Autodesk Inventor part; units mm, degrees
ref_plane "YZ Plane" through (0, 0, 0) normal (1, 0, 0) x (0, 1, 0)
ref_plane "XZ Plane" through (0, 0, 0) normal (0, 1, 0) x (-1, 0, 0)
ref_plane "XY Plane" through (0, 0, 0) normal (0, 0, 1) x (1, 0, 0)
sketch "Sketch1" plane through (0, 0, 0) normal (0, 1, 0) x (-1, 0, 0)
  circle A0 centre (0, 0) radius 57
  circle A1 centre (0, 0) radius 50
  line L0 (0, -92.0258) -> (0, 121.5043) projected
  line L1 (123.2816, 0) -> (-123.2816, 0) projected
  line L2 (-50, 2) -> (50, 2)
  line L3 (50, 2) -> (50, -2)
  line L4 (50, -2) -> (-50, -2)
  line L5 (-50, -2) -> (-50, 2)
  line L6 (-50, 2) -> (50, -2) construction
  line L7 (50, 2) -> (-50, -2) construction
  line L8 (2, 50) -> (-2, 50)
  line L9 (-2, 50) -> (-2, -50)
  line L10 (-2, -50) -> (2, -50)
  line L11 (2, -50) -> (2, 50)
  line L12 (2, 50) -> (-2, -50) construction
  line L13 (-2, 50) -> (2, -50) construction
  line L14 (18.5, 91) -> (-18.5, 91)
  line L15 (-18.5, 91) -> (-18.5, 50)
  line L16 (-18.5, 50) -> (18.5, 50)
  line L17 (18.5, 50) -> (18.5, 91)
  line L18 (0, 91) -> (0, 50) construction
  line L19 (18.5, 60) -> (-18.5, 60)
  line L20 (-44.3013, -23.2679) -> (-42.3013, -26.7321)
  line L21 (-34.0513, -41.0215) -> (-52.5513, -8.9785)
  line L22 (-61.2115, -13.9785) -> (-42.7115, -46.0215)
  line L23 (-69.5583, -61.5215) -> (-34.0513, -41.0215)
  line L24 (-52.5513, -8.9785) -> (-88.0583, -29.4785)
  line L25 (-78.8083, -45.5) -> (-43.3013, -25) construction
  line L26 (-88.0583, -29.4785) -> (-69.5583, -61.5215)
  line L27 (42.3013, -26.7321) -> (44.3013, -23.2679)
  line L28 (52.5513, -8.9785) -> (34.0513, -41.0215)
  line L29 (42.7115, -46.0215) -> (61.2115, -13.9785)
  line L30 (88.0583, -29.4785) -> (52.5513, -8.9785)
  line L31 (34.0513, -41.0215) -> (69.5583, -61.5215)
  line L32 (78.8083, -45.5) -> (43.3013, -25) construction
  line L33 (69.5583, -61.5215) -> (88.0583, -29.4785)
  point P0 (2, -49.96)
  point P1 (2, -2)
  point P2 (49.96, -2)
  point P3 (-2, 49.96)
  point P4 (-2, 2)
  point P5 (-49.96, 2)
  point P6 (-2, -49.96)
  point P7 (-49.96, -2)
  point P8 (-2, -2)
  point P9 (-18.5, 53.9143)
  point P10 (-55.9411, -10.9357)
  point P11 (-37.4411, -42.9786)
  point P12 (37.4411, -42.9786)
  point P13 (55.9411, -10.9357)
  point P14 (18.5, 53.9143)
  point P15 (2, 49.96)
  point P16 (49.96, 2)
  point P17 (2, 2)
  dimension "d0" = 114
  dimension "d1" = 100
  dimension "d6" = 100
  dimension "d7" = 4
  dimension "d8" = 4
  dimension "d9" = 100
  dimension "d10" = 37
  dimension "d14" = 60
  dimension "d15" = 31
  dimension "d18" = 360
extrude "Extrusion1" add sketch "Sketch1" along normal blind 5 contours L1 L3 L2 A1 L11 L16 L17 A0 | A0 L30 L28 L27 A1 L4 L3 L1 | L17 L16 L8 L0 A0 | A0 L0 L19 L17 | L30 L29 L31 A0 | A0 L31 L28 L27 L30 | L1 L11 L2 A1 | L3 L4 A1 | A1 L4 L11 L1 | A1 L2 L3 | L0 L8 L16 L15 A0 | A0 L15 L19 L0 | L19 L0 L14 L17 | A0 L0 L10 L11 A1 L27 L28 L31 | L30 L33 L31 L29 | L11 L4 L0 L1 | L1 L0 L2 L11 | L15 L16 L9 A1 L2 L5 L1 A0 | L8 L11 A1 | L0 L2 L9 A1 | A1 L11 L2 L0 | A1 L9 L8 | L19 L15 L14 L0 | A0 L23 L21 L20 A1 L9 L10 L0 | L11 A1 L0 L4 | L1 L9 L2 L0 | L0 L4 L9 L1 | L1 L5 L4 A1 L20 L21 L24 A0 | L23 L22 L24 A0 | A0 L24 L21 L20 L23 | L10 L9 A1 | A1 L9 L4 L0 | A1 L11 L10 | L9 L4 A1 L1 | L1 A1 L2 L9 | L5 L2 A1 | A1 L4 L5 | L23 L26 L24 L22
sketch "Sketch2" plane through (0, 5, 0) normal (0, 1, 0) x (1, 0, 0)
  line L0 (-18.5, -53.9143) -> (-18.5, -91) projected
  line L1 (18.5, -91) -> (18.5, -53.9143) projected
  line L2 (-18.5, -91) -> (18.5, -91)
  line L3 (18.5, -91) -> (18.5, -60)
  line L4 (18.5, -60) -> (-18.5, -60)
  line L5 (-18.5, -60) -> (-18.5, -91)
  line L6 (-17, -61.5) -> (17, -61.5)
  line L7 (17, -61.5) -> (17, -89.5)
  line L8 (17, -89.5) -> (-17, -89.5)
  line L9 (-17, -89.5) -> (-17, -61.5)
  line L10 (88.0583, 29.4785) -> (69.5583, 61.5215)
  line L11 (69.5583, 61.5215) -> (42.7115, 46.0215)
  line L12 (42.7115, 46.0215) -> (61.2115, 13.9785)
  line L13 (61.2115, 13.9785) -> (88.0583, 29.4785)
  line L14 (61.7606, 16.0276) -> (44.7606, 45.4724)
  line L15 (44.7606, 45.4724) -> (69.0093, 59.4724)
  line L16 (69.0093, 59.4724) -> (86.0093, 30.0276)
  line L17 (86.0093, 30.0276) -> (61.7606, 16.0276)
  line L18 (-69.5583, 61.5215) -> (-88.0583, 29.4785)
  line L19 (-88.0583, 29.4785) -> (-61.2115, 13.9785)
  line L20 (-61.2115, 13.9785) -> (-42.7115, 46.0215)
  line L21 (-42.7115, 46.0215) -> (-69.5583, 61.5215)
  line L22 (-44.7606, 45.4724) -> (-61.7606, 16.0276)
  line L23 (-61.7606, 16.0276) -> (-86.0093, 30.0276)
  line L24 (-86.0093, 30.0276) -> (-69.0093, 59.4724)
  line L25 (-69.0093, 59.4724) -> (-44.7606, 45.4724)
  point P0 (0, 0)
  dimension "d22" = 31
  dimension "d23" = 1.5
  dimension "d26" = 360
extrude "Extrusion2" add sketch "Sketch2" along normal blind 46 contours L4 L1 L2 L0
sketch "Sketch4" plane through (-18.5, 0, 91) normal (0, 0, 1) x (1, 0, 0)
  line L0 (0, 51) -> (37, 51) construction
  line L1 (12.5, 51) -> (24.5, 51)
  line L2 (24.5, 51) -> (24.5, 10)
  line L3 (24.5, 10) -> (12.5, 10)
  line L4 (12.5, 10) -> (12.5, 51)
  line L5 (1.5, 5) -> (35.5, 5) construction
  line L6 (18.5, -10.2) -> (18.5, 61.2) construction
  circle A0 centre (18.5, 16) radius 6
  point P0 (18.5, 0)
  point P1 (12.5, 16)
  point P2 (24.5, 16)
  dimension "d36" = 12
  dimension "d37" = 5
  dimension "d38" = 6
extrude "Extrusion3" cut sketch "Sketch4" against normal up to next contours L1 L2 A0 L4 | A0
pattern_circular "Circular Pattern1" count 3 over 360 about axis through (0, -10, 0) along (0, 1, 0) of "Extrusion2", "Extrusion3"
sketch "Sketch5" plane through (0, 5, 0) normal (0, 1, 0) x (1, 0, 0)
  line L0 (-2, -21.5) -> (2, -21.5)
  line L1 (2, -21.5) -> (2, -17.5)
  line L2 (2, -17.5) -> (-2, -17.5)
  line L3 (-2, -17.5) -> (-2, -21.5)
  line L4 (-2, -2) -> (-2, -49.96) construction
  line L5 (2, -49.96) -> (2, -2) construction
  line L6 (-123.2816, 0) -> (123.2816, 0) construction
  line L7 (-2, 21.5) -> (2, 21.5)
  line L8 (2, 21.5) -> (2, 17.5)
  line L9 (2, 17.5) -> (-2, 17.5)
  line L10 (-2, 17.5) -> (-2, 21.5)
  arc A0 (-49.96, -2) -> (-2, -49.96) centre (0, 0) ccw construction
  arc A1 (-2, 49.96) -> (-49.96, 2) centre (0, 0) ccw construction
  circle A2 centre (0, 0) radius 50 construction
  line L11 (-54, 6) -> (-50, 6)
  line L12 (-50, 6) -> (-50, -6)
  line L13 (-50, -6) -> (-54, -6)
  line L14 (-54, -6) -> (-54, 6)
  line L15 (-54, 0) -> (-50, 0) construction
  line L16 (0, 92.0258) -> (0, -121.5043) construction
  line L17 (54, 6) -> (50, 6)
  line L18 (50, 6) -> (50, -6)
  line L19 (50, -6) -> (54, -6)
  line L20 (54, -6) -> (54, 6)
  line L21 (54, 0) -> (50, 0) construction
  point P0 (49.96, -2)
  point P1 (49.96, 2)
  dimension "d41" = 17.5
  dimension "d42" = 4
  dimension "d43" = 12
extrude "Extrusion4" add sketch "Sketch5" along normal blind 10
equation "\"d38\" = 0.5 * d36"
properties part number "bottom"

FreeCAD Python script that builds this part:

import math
import FreeCAD as App
import Part
import Sketcher
from FreeCAD import Vector
Q = App.Units.Quantity


def add_polygon(sketch, points):
    """Adds a closed chain of lines whose ends are joined by coincident constraints."""
    first, n = sketch.GeometryCount, len(points)
    for a, b in zip(points, points[1:] + points[:1]):
        sketch.addGeometry(Part.LineSegment(App.Vector(*a, 0), App.Vector(*b, 0)), False)
    for i in range(n):
        sketch.addConstraint(Sketcher.Constraint("Coincident", first + i, 2, first + (i + 1) % n, 1))

doc = App.newDocument("Part")
params = doc.addObject("Spreadsheet::Sheet", "Params")
for row, (alias, value) in enumerate([
    ("sketch1_radius", "57 mm"),
    ("sketch1_radius2", "50 mm"),
    ("sketch1_width", "37 mm"),
    ("sketch1_length", "37 mm"),
    ("pad1_length", "5 mm"),
    ("sketch2_height", "31 mm"),
    ("sketch2_width", "37 mm"),
    ("pad2_length", "46 mm"),
    ("sketch3_radius", "6 mm"),
    ("sketch3_height", "35 mm"),
    ("sketch4_width", "4 mm"),
    ("sketch4_height", "12 mm"),
    ("pad3_length", "10 mm"),
], start=1):
    params.set(f"A{row}", alias)
    params.set(f"B{row}", "=" + value)
    params.setAlias(f"B{row}", alias)

body = doc.addObject("PartDesign::Body", "Body")

# Sketch on XZ plane
sketch1 = body.newObject("Sketcher::SketchObject", "Sketch")
sketch1.AttachmentSupport = (doc.getObject("XZ_Plane"), [""])
sketch1.MapMode = "FlatFace"
sketch1.addGeometry(Part.LineSegment(Vector(-18.5, 53.914284, 0), Vector(-18.5, 91, 0)), False)
sketch1.addGeometry(Part.LineSegment(Vector(-18.5, 91, 0), Vector(18.5, 91, 0)), False)
sketch1.addGeometry(Part.LineSegment(Vector(18.5, 91, 0), Vector(18.5, 53.914284, 0)), False)
sketch1.addGeometry(Part.ArcOfCircle(Part.Circle(Vector(0, 0, 0), Vector(0, 0, 1), 57), math.radians(-11.060954), math.radians(71.060995)), False)
sketch1.addGeometry(Part.LineSegment(Vector(55.941147, -10.935632, 0), Vector(88.0583, -29.4785, 0)), False)
sketch1.addGeometry(Part.LineSegment(Vector(88.0583, -29.4785, 0), Vector(69.5583, -61.5215, 0)), False)
sketch1.addGeometry(Part.LineSegment(Vector(69.5583, -61.5215, 0), Vector(37.441129, -42.978621, 0)), False)
sketch1.addGeometry(Part.ArcOfCircle(Part.Circle(Vector(0, 0, 0), Vector(0, 0, 1), 57), math.radians(-131.060981), math.radians(-48.939019)), False)
sketch1.addGeometry(Part.LineSegment(Vector(-37.441129, -42.978621, 0), Vector(-69.5583, -61.5215, 0)), False)
sketch1.addGeometry(Part.LineSegment(Vector(-69.5583, -61.5215, 0), Vector(-88.0583, -29.4785, 0)), False)
sketch1.addGeometry(Part.LineSegment(Vector(-88.0583, -29.4785, 0), Vector(-55.941147, -10.935632, 0)), False)
sketch1.addGeometry(Part.ArcOfCircle(Part.Circle(Vector(0, 0, 0), Vector(0, 0, 1), 57), math.radians(108.939005), math.radians(191.060954)), False)
sketch1.addGeometry(Part.ArcOfCircle(Part.Circle(Vector(0, 0, 0), Vector(0, 0, 1), 50), math.radians(92.292443), math.radians(177.707557)), False)
sketch1.addGeometry(Part.LineSegment(Vector(-49.959984, 2, 0), Vector(-2, 2, 0)), False)
sketch1.addGeometry(Part.LineSegment(Vector(-2, 2, 0), Vector(-2, 49.959984, 0)), False)
sketch1.addGeometry(Part.ArcOfCircle(Part.Circle(Vector(0, 0, 0), Vector(0, 0, 1), 50), math.radians(-177.707557), math.radians(-92.292443)), False)
sketch1.addGeometry(Part.LineSegment(Vector(-2, -49.959984, 0), Vector(-2, -2, 0)), False)
sketch1.addGeometry(Part.LineSegment(Vector(-2, -2, 0), Vector(-49.959984, -2, 0)), False)
sketch1.addGeometry(Part.LineSegment(Vector(2, 49.959984, 0), Vector(2, 2, 0)), False)
sketch1.addGeometry(Part.LineSegment(Vector(2, 2, 0), Vector(49.959984, 2, 0)), False)
sketch1.addGeometry(Part.ArcOfCircle(Part.Circle(Vector(0, 0, 0), Vector(0, 0, 1), 50), math.radians(2.292443), math.radians(87.707557)), False)
sketch1.addGeometry(Part.ArcOfCircle(Part.Circle(Vector(0, 0, 0), Vector(0, 0, 1), 50), math.radians(-87.707557), math.radians(-2.292443)), False)
sketch1.addGeometry(Part.LineSegment(Vector(49.959984, -2, 0), Vector(2, -2, 0)), False)
sketch1.addGeometry(Part.LineSegment(Vector(2, -2, 0), Vector(2, -49.959984, 0)), False)
sketch1.addConstraint(Sketcher.Constraint("Coincident", 0, 2, 1, 1))
sketch1.addConstraint(Sketcher.Constraint("Coincident", 1, 2, 2, 1))
sketch1.addConstraint(Sketcher.Constraint("Coincident", 2, 2, 3, 2))
sketch1.addConstraint(Sketcher.Constraint("Coincident", 3, 1, 4, 1))
sketch1.addConstraint(Sketcher.Constraint("Coincident", 4, 2, 5, 1))
sketch1.addConstraint(Sketcher.Constraint("Coincident", 5, 2, 6, 1))
sketch1.addConstraint(Sketcher.Constraint("Coincident", 6, 2, 7, 2))
sketch1.addConstraint(Sketcher.Constraint("Coincident", 7, 1, 8, 1))
sketch1.addConstraint(Sketcher.Constraint("Coincident", 8, 2, 9, 1))
sketch1.addConstraint(Sketcher.Constraint("Coincident", 9, 2, 10, 1))
sketch1.addConstraint(Sketcher.Constraint("Coincident", 10, 2, 11, 2))
sketch1.addConstraint(Sketcher.Constraint("Coincident", 11, 1, 0, 1))
sketch1.addConstraint(Sketcher.Constraint("Coincident", 12, 2, 13, 1))
sketch1.addConstraint(Sketcher.Constraint("Coincident", 13, 2, 14, 1))
sketch1.addConstraint(Sketcher.Constraint("Coincident", 14, 2, 12, 1))
sketch1.addConstraint(Sketcher.Constraint("Coincident", 15, 2, 16, 1))
sketch1.addConstraint(Sketcher.Constraint("Coincident", 16, 2, 17, 1))
sketch1.addConstraint(Sketcher.Constraint("Coincident", 17, 2, 15, 1))
sketch1.addConstraint(Sketcher.Constraint("Coincident", 18, 2, 19, 1))
sketch1.addConstraint(Sketcher.Constraint("Coincident", 19, 2, 20, 1))
sketch1.addConstraint(Sketcher.Constraint("Coincident", 20, 2, 18, 1))
sketch1.addConstraint(Sketcher.Constraint("Coincident", 21, 2, 22, 1))
sketch1.addConstraint(Sketcher.Constraint("Coincident", 22, 2, 23, 1))
sketch1.addConstraint(Sketcher.Constraint("Coincident", 23, 2, 21, 1))
sketch1.addConstraint(Sketcher.Constraint("Vertical", 0))
sketch1.addConstraint(Sketcher.Constraint("Horizontal", 1))
sketch1.addConstraint(Sketcher.Constraint("Vertical", 2))
sketch1.addConstraint(Sketcher.Constraint("Horizontal", 13))
sketch1.addConstraint(Sketcher.Constraint("Vertical", 14))
sketch1.addConstraint(Sketcher.Constraint("Vertical", 16))
sketch1.addConstraint(Sketcher.Constraint("Horizontal", 17))
sketch1.addConstraint(Sketcher.Constraint("Vertical", 18))
sketch1.addConstraint(Sketcher.Constraint("Horizontal", 19))
sketch1.addConstraint(Sketcher.Constraint("Horizontal", 22))
sketch1.addConstraint(Sketcher.Constraint("Vertical", 23))
sketch1.addConstraint(Sketcher.Constraint("Coincident", 3, 3, -1, 1))
sketch1.addConstraint(Sketcher.Constraint("Coincident", 7, 3, -1, 1))
sketch1.addConstraint(Sketcher.Constraint("Coincident", 11, 3, -1, 1))
sketch1.addConstraint(Sketcher.Constraint("Coincident", 12, 3, -1, 1))
sketch1.addConstraint(Sketcher.Constraint("Coincident", 15, 3, -1, 1))
sketch1.addConstraint(Sketcher.Constraint("Coincident", 20, 3, -1, 1))
sketch1.addConstraint(Sketcher.Constraint("Coincident", 21, 3, -1, 1))
sketch1.addConstraint(Sketcher.Constraint("Equal", 3, 7))
sketch1.addConstraint(Sketcher.Constraint("Equal", 7, 11))
sketch1.addConstraint(Sketcher.Constraint("Equal", 12, 15))
sketch1.addConstraint(Sketcher.Constraint("Equal", 15, 20))
sketch1.addConstraint(Sketcher.Constraint("Equal", 20, 21))
sketch1.addConstraint(Sketcher.Constraint("Symmetric", 16, 2, 18, 2, -1, 1))
sketch1.addConstraint(Sketcher.Constraint("Symmetric", 13, 2, 22, 2, -1, 1))
sketch1.addConstraint(Sketcher.Constraint("Symmetric", 5, 2, 8, 2, -2))
sketch1.addConstraint(Sketcher.Constraint("Symmetric", 4, 2, 9, 2, -2))
sketch1.addConstraint(Sketcher.Constraint("Symmetric", 13, 2, 18, 2, -2))
sketch1.addConstraint(Sketcher.Constraint("Perpendicular", 4, 5))
sketch1.addConstraint(Sketcher.Constraint("Perpendicular", 5, 6))
sketch1.addConstraint(Sketcher.Constraint("Perpendicular", 8, 9))
sketch1.addConstraint(Sketcher.Constraint("Perpendicular", 9, 10))
sketch1.addConstraint(Sketcher.Constraint("Horizontal", 2, 2, 11, 1))
sketch1.addConstraint(Sketcher.Constraint("Equal", 22, 14))
sketch1.addConstraint(Sketcher.Constraint("Equal", 4, 6))
sketch1.addConstraint(Sketcher.Constraint("Radius", 3, Q("57 mm")))
sketch1.addConstraint(Sketcher.Constraint("Radius", 12, Q("50 mm")))
sketch1.addConstraint(Sketcher.Constraint("DistanceX", 1, 1, 1, 2, Q("37 mm")))
sketch1.addConstraint(Sketcher.Constraint("Distance", 5, Q("37 mm")))
sketch1.addConstraint(Sketcher.Constraint("DistanceY", 17, 2, 12, 2, Q("4 mm")))
sketch1.addConstraint(Sketcher.Constraint("Angle", 4, Q("-30 deg")))
sketch1.addConstraint(Sketcher.Constraint("DistanceY", -1, 1, 0, 2, Q("91 mm")))
sketch1.addConstraint(Sketcher.Constraint("Distance", 4, Q("37.0857 mm")))
sketch1.setExpression("Constraints[59]", "Params.sketch1_radius")
sketch1.setExpression("Constraints[60]", "Params.sketch1_radius2")
sketch1.setExpression("Constraints[61]", "Params.sketch1_width")
sketch1.setExpression("Constraints[62]", "Params.sketch1_length")
pad1 = body.newObject("PartDesign::Pad", "Pad")
pad1.Profile = sketch1
pad1.setExpression("Length", "Params.pad1_length")
pad1.Reversed = True

# Sketch on XZ plane
sketch2 = body.newObject("Sketcher::SketchObject", "Sketch001")
sketch2.AttachmentSupport = (doc.getObject("XZ_Plane"), [""])
sketch2.MapMode = "FlatFace"
sketch2.AttachmentOffset = App.Placement(Vector(0, 0, -5), App.Rotation())
add_polygon(sketch2, [(18.5, 60), (-18.5, 60), (-18.5, 91), (18.5, 91)])  # lines 0-3
add_polygon(sketch2, [(-17, 89.5), (-17, 61.5), (17, 61.5), (17, 89.5)])  # lines 4-7
sketch2.addConstraint(Sketcher.Constraint("Horizontal", 0))
sketch2.addConstraint(Sketcher.Constraint("Vertical", 1))
sketch2.addConstraint(Sketcher.Constraint("Horizontal", 2))
sketch2.addConstraint(Sketcher.Constraint("Vertical", 3))
sketch2.addConstraint(Sketcher.Constraint("Vertical", 4))
sketch2.addConstraint(Sketcher.Constraint("Horizontal", 5))
sketch2.addConstraint(Sketcher.Constraint("Vertical", 6))
sketch2.addConstraint(Sketcher.Constraint("Horizontal", 7))
sketch2.addConstraint(Sketcher.Constraint("DistanceY", 1, 1, 1, 2, Q("31 mm")))
sketch2.addConstraint(Sketcher.Constraint("DistanceX", 0, 2, 4, 2, Q("1.5 mm")))
sketch2.addConstraint(Sketcher.Constraint("DistanceY", 0, 2, 4, 2, Q("1.5 mm")))
sketch2.addConstraint(Sketcher.Constraint("DistanceX", 5, 2, 3, 2, Q("1.5 mm")))
sketch2.addConstraint(Sketcher.Constraint("DistanceY", 6, 2, 2, 2, Q("1.5 mm")))
sketch2.addConstraint(Sketcher.Constraint("DistanceX", 0, 2, 0, 1, Q("37 mm")))
sketch2.addConstraint(Sketcher.Constraint("DistanceY", -1, 1, 0, 2, Q("60 mm")))
sketch2.addConstraint(Sketcher.Constraint("DistanceX", 4, 2, -1, 1, Q("17 mm")))
sketch2.setExpression("Constraints[16]", "Params.sketch2_height")
sketch2.setExpression("Constraints[21]", "Params.sketch2_width")
pad2 = body.newObject("PartDesign::Pad", "Pad001")
pad2.Profile = sketch2
pad2.setExpression("Length", "Params.pad2_length")
pad2.Reversed = True

# Sketch on XY plane
sketch3 = body.newObject("Sketcher::SketchObject", "Sketch002")
sketch3.AttachmentSupport = (doc.getObject("XY_Plane"), [""])
sketch3.MapMode = "FlatFace"
sketch3.AttachmentOffset = App.Placement(Vector(0, 0, 91), App.Rotation())
sketch3.addGeometry(Part.LineSegment(Vector(6, 51, 0), Vector(-6, 51, 0)), False)
sketch3.addGeometry(Part.LineSegment(Vector(-6, 51, 0), Vector(-6, 16, 0)), False)
sketch3.addGeometry(Part.ArcOfCircle(Part.Circle(Vector(0, 16, 0), Vector(0, 0, 1), 6), math.radians(180), math.radians(360)), False)
sketch3.addGeometry(Part.LineSegment(Vector(6, 16, 0), Vector(6, 51, 0)), False)
sketch3.addConstraint(Sketcher.Constraint("Coincident", 0, 2, 1, 1))
sketch3.addConstraint(Sketcher.Constraint("Tangent", 1, 2, 2, 1))
sketch3.addConstraint(Sketcher.Constraint("Tangent", 2, 2, 3, 1))
sketch3.addConstraint(Sketcher.Constraint("Coincident", 3, 2, 0, 1))
sketch3.addConstraint(Sketcher.Constraint("Horizontal", 0))
sketch3.addConstraint(Sketcher.Constraint("Vertical", 1))
sketch3.addConstraint(Sketcher.Constraint("Vertical", 3))
sketch3.addConstraint(Sketcher.Constraint("PointOnObject", 2, 3, -2))
sketch3.addConstraint(Sketcher.Constraint("Radius", 2, Q("6 mm")))
sketch3.addConstraint(Sketcher.Constraint("DistanceY", 1, 2, 1, 1, Q("35 mm")))
sketch3.addConstraint(Sketcher.Constraint("DistanceY", -1, 1, 2, 3, Q("16 mm")))
sketch3.setExpression("Constraints[8]", "Params.sketch3_radius")
sketch3.setExpression("Constraints[9]", "Params.sketch3_height")
pocket1 = body.newObject("PartDesign::Pocket", "Pocket")
pocket1.Profile = sketch3
pocket1.Type = "UpToFirst"
doc.recompute()

polarpattern = body.newObject("PartDesign::PolarPattern", "PolarPattern")
polarpattern.Originals = [pad2, pocket1]
polarpattern.Axis = (doc.getObject("Y_Axis"), [""])
polarpattern.Angle = 360
polarpattern.Occurrences = 3
body.Tip = polarpattern

# Sketch on XZ plane
sketch4 = body.newObject("Sketcher::SketchObject", "Sketch003")
sketch4.AttachmentSupport = (doc.getObject("XZ_Plane"), [""])
sketch4.MapMode = "FlatFace"
sketch4.AttachmentOffset = App.Placement(Vector(0, 0, -5), App.Rotation())
add_polygon(sketch4, [(-2, 17.5), (-2, 21.5), (2, 21.5), (2, 17.5)])  # lines 0-3
add_polygon(sketch4, [(2, -21.5), (-2, -21.5), (-2, -17.5), (2, -17.5)])  # lines 4-7
add_polygon(sketch4, [(-50, -6), (-54, -6), (-54, 6), (-50, 6)])  # lines 8-11
add_polygon(sketch4, [(54, 6), (54, -6), (50, -6), (50, 6)])  # lines 12-15
sketch4.addConstraint(Sketcher.Constraint("Vertical", 0))
sketch4.addConstraint(Sketcher.Constraint("Horizontal", 1))
sketch4.addConstraint(Sketcher.Constraint("Vertical", 2))
sketch4.addConstraint(Sketcher.Constraint("Horizontal", 3))
sketch4.addConstraint(Sketcher.Constraint("Horizontal", 4))
sketch4.addConstraint(Sketcher.Constraint("Vertical", 5))
sketch4.addConstraint(Sketcher.Constraint("Horizontal", 6))
sketch4.addConstraint(Sketcher.Constraint("Vertical", 7))
sketch4.addConstraint(Sketcher.Constraint("Horizontal", 8))
sketch4.addConstraint(Sketcher.Constraint("Vertical", 9))
sketch4.addConstraint(Sketcher.Constraint("Horizontal", 10))
sketch4.addConstraint(Sketcher.Constraint("Vertical", 11))
sketch4.addConstraint(Sketcher.Constraint("Vertical", 12))
sketch4.addConstraint(Sketcher.Constraint("Horizontal", 13))
sketch4.addConstraint(Sketcher.Constraint("Vertical", 14))
sketch4.addConstraint(Sketcher.Constraint("Horizontal", 15))
sketch4.addConstraint(Sketcher.Constraint("Symmetric", 1, 2, 4, 2, -1, 1))
sketch4.addConstraint(Sketcher.Constraint("Symmetric", 3, 2, 6, 2, -1, 1))
sketch4.addConstraint(Sketcher.Constraint("Symmetric", 9, 2, 12, 2, -1, 1))
sketch4.addConstraint(Sketcher.Constraint("Symmetric", 11, 2, 14, 2, -1, 1))
sketch4.addConstraint(Sketcher.Constraint("Horizontal", 11, 2, 12, 2))
sketch4.addConstraint(Sketcher.Constraint("Vertical", 3, 2, 4, 2))
sketch4.addConstraint(Sketcher.Constraint("Equal", 6, 8))
sketch4.addConstraint(Sketcher.Constraint("Equal", 15, 0))
sketch4.addConstraint(Sketcher.Constraint("DistanceX", 1, 1, 1, 2, Q("4 mm")))
sketch4.addConstraint(Sketcher.Constraint("DistanceY", 9, 1, 9, 2, Q("12 mm")))
sketch4.addConstraint(Sketcher.Constraint("DistanceY", -1, 1, 2, 2, Q("17.5 mm")))
sketch4.addConstraint(Sketcher.Constraint("DistanceX", 8, 2, -1, 1, Q("54 mm")))
sketch4.setExpression("Constraints[40]", "Params.sketch4_width")
sketch4.setExpression("Constraints[41]", "Params.sketch4_height")
pad3 = body.newObject("PartDesign::Pad", "Pad002")
pad3.Profile = sketch4
pad3.setExpression("Length", "Params.pad3_length")
pad3.Reversed = True

doc.recompute()
